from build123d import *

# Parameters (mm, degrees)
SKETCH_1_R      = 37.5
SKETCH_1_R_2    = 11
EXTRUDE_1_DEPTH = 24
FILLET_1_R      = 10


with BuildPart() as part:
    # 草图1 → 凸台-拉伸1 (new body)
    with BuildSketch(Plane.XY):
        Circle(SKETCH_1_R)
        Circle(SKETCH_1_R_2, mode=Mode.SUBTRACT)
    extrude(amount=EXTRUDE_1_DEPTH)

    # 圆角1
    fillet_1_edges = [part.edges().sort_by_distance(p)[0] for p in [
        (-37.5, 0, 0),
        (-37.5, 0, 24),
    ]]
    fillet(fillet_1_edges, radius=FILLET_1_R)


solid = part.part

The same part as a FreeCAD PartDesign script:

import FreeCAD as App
import Part
import Sketcher

V = App.Vector
Q = App.Units.Quantity


def edges_at(feature, points):
    """Names of the edges that pass closest to the given points."""
    edges = feature.Shape.Edges
    near = lambda p: min(range(len(edges)), key=lambda i: edges[i].distToShape(Part.Vertex(*p))[0])
    return sorted({f"Edge{near(p) + 1}" for p in points})

doc = App.newDocument("Part")
body = doc.addObject("PartDesign::Body", "Body")

# Sketch on XY plane
sketch1 = body.newObject("Sketcher::SketchObject", "Sketch")
sketch1.AttachmentSupport = (doc.getObject("XY_Plane"), [""])
sketch1.MapMode = "FlatFace"
sketch1.addGeometry([
    Part.Circle(V(0, 0, 0), V(0, 0, 1), 38),
    Part.Circle(V(0, 0, 0), V(0, 0, 1), 11),
], False)
sketch1.addConstraint([
    Sketcher.Constraint("Coincident", 0, 3, -1, 1),
    Sketcher.Constraint("Coincident", 1, 3, -1, 1),
    Sketcher.Constraint("Diameter", 0, Q("75 mm")),
    Sketcher.Constraint("Diameter", 1, Q("22 mm")),
])
pad1 = body.newObject("PartDesign::Pad", "Pad")
pad1.Profile = sketch1
pad1.Length = 24
doc.recompute()

fillet = body.newObject("PartDesign::Fillet", "Fillet")
fillet.Base = (pad1, edges_at(pad1, [(-37.5, 0, 0), (-37.5, 0, 24)]))
fillet.Radius = 10

doc.recompute()
